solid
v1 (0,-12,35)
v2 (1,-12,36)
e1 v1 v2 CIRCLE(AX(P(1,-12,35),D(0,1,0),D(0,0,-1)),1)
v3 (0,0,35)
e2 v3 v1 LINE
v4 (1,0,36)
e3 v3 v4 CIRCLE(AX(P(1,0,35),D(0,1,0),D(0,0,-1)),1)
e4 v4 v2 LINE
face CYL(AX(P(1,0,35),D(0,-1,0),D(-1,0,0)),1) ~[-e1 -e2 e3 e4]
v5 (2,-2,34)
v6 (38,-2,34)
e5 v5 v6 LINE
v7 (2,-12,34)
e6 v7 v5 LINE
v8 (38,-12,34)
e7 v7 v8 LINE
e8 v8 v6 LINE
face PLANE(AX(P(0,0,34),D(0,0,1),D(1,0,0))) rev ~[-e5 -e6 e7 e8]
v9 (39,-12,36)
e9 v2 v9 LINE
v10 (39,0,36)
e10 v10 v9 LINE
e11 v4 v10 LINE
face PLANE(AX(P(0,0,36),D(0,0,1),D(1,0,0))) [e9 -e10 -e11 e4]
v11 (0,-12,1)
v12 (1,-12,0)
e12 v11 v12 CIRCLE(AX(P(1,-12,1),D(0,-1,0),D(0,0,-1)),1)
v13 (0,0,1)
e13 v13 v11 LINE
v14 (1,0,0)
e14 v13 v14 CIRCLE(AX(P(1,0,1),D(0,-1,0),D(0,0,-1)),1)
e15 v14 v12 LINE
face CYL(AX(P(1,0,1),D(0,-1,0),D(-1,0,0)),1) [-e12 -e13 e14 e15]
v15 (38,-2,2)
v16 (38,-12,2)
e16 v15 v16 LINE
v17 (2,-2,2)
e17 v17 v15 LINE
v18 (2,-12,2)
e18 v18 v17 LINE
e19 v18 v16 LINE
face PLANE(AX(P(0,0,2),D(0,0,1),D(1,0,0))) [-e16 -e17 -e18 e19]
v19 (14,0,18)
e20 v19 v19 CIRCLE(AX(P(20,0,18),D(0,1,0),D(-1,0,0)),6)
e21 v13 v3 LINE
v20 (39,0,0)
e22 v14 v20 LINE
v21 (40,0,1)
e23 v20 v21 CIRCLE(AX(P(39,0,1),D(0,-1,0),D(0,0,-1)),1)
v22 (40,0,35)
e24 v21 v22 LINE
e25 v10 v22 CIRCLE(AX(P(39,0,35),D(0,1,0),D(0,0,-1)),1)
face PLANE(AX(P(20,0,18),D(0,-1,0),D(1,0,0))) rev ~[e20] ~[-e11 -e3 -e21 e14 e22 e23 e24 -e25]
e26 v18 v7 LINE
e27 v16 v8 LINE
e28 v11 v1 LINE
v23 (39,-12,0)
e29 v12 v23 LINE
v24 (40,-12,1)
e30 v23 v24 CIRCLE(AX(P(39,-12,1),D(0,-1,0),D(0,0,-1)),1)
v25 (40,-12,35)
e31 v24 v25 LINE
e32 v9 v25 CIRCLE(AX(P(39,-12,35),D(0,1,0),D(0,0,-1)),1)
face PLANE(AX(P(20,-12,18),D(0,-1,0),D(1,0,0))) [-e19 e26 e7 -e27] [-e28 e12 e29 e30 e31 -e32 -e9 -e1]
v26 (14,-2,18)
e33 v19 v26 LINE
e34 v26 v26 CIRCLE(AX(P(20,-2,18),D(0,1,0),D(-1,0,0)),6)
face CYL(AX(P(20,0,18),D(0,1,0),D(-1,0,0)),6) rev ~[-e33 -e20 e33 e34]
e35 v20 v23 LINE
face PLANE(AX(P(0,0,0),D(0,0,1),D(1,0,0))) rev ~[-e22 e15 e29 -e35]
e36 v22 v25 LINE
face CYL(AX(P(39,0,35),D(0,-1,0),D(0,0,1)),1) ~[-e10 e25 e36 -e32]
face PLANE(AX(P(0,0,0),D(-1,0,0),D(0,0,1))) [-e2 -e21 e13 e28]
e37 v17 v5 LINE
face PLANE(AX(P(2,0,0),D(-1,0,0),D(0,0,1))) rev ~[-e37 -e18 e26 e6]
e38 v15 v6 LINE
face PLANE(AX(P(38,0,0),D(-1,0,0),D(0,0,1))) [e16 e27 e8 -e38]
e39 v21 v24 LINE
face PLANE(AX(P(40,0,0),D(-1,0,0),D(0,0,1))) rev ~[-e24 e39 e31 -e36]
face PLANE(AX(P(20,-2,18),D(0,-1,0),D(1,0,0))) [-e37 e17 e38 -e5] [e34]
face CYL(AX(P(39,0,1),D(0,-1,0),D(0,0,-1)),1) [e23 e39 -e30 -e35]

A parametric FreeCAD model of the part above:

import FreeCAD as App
import Part
import Sketcher
from FreeCAD import Vector
Q = App.Units.Quantity


def edges_at(feature, points):
    """Names of the edges that pass closest to the given points."""
    edges = feature.Shape.Edges
    near = lambda p: min(range(len(edges)), key=lambda i: edges[i].distToShape(Part.Vertex(*p))[0])
    return sorted({f"Edge{near(p) + 1}" for p in points})


def faces_at(feature, points):
    """Names of the faces that lie closest to the given points."""
    faces = feature.Shape.Faces
    near = lambda p: min(range(len(faces)), key=lambda i: faces[i].distToShape(Part.Vertex(*p))[0])
    return sorted({f"Face{near(p) + 1}" for p in points})

doc = App.newDocument("Part")
body = doc.addObject("PartDesign::Body", "Body")

sketch1 = doc.addObject("Sketcher::SketchObject", "Sketch")
body.addObject(sketch1)
sketch1.AttachmentSupport = (doc.XZ_Plane, [""])
sketch1.MapMode = "FlatFace"
sketch1.addGeometry([
    Part.LineSegment(Vector(0, 36, 0), Vector(0, 0, 0)),
    Part.LineSegment(Vector(0, 0, 0), Vector(40, 0, 0)),
    Part.LineSegment(Vector(40, 0, 0), Vector(40, 36, 0)),
    Part.LineSegment(Vector(40, 36, 0), Vector(0, 36, 0)),
], False)
sketch1.addConstraint([
    Sketcher.Constraint("Coincident", 0, 2, 1, 1),
    Sketcher.Constraint("Coincident", 1, 2, 2, 1),
    Sketcher.Constraint("Coincident", 2, 2, 3, 1),
    Sketcher.Constraint("Coincident", 3, 2, 0, 1),
    Sketcher.Constraint("Vertical", 0),
    Sketcher.Constraint("Horizontal", 1),
    Sketcher.Constraint("Vertical", 2),
    Sketcher.Constraint("Horizontal", 3),
    Sketcher.Constraint("Coincident", 0, 2, -1, 1),
    Sketcher.Constraint("DistanceX", 1, 1, 1, 2, Q("40 mm")),
    Sketcher.Constraint("DistanceY", 0, 2, 0, 1, Q("36 mm")),
])
pad1 = doc.addObject("PartDesign::Pad", "Pad")
body.addObject(pad1)
pad1.Profile = sketch1
pad1.Length = 12
doc.recompute()

thickness = doc.addObject("PartDesign::Thickness", "Thickness")
body.addObject(thickness)
thickness.Base = (pad1, faces_at(pad1, [(20, -12, 18)]))
thickness.Value = 2
thickness.Reversed = True
thickness.Join = "Arc"

sketch2 = doc.addObject("Sketcher::SketchObject", "Sketch001")
body.addObject(sketch2)
sketch2.AttachmentSupport = (doc.XZ_Plane, [""])
sketch2.MapMode = "FlatFace"
sketch2.addGeometry(Part.Circle(Vector(20, 18, 0), Vector(0, 0, 1), 6), False)
sketch2.addConstraint([
    Sketcher.Constraint("Diameter", 0, Q("12 mm")),
    Sketcher.Constraint("DistanceX", -1, 1, 0, 3, Q("20 mm")),
    Sketcher.Constraint("DistanceY", -1, 1, 0, 3, Q("18 mm")),
])
pocket1 = doc.addObject("PartDesign::Pocket", "Pocket")
body.addObject(pocket1)
pocket1.Profile = sketch2
pocket1.Length = 25
pocket1.Reversed = True
doc.recompute()

fillet = doc.addObject("PartDesign::Fillet", "Fillet")
body.addObject(fillet)
fillet.Base = (pocket1, edges_at(pocket1, [
    (40, -6, 0),
    (40, -6, 36),
    (0, -6, 0),
    (0, -6, 36),
]))
fillet.Radius = 1

doc.recompute()
